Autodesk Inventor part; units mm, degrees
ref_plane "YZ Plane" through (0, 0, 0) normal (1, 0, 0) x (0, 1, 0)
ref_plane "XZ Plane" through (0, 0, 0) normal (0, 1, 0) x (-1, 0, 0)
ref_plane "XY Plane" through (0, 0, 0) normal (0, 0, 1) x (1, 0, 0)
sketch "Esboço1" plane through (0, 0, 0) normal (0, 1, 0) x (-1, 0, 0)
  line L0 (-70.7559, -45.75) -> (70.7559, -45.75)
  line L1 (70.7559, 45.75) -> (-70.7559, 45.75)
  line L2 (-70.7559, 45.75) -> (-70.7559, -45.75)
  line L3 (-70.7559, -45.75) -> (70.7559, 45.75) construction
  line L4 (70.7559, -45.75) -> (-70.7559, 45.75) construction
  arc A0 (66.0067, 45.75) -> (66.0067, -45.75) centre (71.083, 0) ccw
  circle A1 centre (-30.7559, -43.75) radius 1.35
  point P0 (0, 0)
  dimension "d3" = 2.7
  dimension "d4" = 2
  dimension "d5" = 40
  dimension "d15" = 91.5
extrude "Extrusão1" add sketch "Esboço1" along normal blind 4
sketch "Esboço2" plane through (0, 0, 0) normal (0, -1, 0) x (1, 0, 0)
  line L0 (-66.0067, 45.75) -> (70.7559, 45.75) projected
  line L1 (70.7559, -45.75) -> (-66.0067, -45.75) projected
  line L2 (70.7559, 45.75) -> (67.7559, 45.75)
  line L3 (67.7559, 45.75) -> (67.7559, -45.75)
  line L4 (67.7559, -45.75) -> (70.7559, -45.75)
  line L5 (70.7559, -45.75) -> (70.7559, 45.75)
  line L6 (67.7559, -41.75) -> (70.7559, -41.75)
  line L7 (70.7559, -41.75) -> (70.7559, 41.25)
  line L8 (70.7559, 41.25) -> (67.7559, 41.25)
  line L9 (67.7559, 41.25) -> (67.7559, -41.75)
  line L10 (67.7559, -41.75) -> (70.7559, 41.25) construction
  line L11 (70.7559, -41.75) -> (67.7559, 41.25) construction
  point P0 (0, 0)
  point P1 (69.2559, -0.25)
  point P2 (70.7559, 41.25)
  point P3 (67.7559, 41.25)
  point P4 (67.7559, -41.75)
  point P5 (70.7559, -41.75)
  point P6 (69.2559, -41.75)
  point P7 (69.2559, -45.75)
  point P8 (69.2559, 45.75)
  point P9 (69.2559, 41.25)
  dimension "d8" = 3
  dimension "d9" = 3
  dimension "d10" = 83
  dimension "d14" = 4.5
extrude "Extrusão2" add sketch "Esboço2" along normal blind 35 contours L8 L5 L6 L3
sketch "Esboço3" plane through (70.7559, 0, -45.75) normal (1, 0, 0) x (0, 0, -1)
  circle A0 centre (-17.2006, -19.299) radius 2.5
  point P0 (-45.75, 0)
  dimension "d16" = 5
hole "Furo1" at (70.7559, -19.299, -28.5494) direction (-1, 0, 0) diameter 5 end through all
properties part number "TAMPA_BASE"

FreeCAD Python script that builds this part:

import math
import FreeCAD as App
import Part
import Sketcher
Q = App.Units.Quantity

doc = App.newDocument("Part")
body = doc.addObject("PartDesign::Body", "Body")

# Sketch on XZ plane
sketch1 = body.newObject("Sketcher::SketchObject", "Sketch")
sketch1.AttachmentSupport = (doc.getObject("XZ_Plane"), [""])
sketch1.MapMode = "FlatFace"
sketch1.addGeometry([
    Part.LineSegment(App.Vector(70.8, 45.8, 0), App.Vector(70.8, -45.8, 0)),  # 0
    Part.LineSegment(App.Vector(70.8, -45.8, 0), App.Vector(-66, -45.8, 0)),  # 1
    Part.ArcOfCircle(Part.Circle(App.Vector(-71.1, 0, 0), App.Vector(0, 0, 1), 46), math.radians(-84), math.radians(84)),  # 2
    Part.LineSegment(App.Vector(-66, 45.8, 0), App.Vector(70.8, 45.8, 0)),  # 3
    Part.Circle(App.Vector(30.8, -43.8, 0), App.Vector(0, 0, 1), 1.4),  # 4
], False)
sketch1.addConstraint([
    Sketcher.Constraint("Coincident", 0, 2, 1, 1),
    Sketcher.Constraint("Coincident", 1, 2, 2, 1),
    Sketcher.Constraint("Coincident", 2, 2, 3, 1),
    Sketcher.Constraint("Coincident", 3, 2, 0, 1),
    Sketcher.Constraint("Vertical", 0),
    Sketcher.Constraint("Horizontal", 1),
    Sketcher.Constraint("Horizontal", 3),
    Sketcher.Constraint("Symmetric", 1, 2, 2, 2, -1),
    Sketcher.Constraint("Diameter", 4, Q("2.7 mm")),
    Sketcher.Constraint("DistanceY", 0, 2, 0, 1, Q("91.5 mm")),
    Sketcher.Constraint("DistanceX", 4, 3, 0, 2, Q("40 mm")),
    Sketcher.Constraint("DistanceY", 0, 2, 4, 3, Q("2 mm")),
    Sketcher.Constraint("Radius", 2, Q("46.0308 mm")),
    Sketcher.Constraint("DistanceX", 1, 2, 1, 1, Q("136.7626 mm")),
    Sketcher.Constraint("DistanceX", 2, 3, -1, 1, Q("71.083 mm")),
])
pad1 = body.newObject("PartDesign::Pad", "Pad")
pad1.Profile = sketch1
pad1.Length = 4
pad1.Reversed = True

# Sketch on XZ plane
sketch2 = body.newObject("Sketcher::SketchObject", "Sketch001")
sketch2.AttachmentSupport = (doc.getObject("XZ_Plane"), [""])
sketch2.MapMode = "FlatFace"
sketch2.addGeometry([
    Part.LineSegment(App.Vector(70.8, 41.2, 0), App.Vector(67.8, 41.2, 0)),
    Part.LineSegment(App.Vector(67.8, 41.2, 0), App.Vector(67.8, -41.8, 0)),
    Part.LineSegment(App.Vector(67.8, -41.8, 0), App.Vector(70.8, -41.8, 0)),
    Part.LineSegment(App.Vector(70.8, -41.8, 0), App.Vector(70.8, 41.2, 0)),
], False)
sketch2.addConstraint([
    Sketcher.Constraint("Coincident", 0, 2, 1, 1),
    Sketcher.Constraint("Coincident", 1, 2, 2, 1),
    Sketcher.Constraint("Coincident", 2, 2, 3, 1),
    Sketcher.Constraint("Coincident", 3, 2, 0, 1),
    Sketcher.Constraint("Horizontal", 0),
    Sketcher.Constraint("Vertical", 1),
    Sketcher.Constraint("Horizontal", 2),
    Sketcher.Constraint("Vertical", 3),
    Sketcher.Constraint("DistanceX", 0, 2, 0, 1, Q("3 mm")),
    Sketcher.Constraint("DistanceY", 1, 2, 1, 1, Q("83 mm")),
    Sketcher.Constraint("DistanceY", -1, 1, 0, 2, Q("41.25 mm")),
    Sketcher.Constraint("DistanceX", -1, 1, 0, 2, Q("67.756 mm")),
])
pad2 = body.newObject("PartDesign::Pad", "Pad001")
pad2.Profile = sketch2
pad2.Length = 35

# Sketch on YZ plane
sketch3 = body.newObject("Sketcher::SketchObject", "Sketch002")
sketch3.AttachmentSupport = (doc.getObject("YZ_Plane"), [""])
sketch3.MapMode = "FlatFace"
sketch3.AttachmentOffset = App.Placement(App.Vector(0, 0, 70.7559), App.Rotation())
sketch3.addGeometry(Part.Circle(App.Vector(-19.3, -28.5, 0), App.Vector(0, 0, 1), 2.5), False)
sketch3.addConstraint([
    Sketcher.Constraint("Diameter", 0, Q("5 mm")),
    Sketcher.Constraint("DistanceX", 0, 3, -1, 1, Q("19.299 mm")),
    Sketcher.Constraint("DistanceY", 0, 3, -1, 1, Q("28.5494 mm")),
])
doc.recompute()
hole = body.newObject("PartDesign::Hole", "Hole")
hole.Profile = sketch3
hole.ThreadType = "None"
hole.Diameter = 5
hole.DepthType = "ThroughAll"

doc.recompute()
